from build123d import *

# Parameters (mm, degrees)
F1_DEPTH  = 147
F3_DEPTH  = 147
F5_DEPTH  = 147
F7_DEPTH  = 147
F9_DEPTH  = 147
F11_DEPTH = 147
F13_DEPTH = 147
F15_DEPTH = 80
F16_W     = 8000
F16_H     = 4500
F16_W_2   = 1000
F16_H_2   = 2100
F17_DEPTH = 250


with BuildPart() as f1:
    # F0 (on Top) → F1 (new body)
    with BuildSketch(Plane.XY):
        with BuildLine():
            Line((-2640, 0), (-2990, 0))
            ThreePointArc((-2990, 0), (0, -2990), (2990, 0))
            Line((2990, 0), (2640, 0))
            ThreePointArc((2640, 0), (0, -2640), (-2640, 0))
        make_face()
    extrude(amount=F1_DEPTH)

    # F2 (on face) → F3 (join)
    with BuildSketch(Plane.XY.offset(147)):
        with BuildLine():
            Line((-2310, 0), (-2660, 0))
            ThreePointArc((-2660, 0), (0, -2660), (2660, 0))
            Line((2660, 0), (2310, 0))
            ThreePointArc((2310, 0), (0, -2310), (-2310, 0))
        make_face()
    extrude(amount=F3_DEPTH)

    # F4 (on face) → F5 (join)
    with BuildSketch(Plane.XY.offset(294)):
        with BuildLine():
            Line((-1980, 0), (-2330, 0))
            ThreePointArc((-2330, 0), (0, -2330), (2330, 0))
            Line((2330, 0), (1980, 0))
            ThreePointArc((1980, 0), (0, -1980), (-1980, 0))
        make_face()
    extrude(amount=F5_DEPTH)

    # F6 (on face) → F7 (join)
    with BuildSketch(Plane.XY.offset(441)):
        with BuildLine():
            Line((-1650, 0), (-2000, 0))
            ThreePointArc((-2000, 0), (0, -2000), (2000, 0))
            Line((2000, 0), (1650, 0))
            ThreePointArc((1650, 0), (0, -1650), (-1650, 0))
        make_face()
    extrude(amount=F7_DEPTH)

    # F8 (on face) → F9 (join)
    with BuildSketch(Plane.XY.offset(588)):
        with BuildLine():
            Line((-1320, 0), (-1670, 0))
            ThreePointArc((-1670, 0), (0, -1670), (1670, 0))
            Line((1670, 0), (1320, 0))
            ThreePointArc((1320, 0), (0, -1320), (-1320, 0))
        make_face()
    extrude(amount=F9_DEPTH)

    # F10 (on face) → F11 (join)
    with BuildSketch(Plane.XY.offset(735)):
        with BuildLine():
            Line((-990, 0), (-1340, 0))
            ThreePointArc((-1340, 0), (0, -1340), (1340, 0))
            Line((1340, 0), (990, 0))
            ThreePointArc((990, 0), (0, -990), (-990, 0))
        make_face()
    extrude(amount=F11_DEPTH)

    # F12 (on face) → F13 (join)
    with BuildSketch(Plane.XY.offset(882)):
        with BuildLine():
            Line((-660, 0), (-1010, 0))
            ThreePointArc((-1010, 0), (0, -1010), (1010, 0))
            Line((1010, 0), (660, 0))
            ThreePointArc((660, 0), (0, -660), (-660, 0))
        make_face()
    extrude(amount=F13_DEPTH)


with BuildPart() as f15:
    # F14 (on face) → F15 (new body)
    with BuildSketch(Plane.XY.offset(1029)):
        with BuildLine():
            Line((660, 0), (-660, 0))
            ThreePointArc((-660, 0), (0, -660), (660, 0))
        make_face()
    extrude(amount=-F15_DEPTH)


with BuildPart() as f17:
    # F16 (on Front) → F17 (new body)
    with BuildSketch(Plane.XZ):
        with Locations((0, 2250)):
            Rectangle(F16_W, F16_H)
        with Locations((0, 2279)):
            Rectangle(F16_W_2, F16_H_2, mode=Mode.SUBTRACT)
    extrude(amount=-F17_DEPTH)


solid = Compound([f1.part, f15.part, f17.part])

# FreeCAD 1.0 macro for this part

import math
import FreeCAD as App
import Part
import Sketcher
from FreeCAD import Vector

doc = App.newDocument("Part")
body = doc.addObject("PartDesign::Body", "Body")

sketch1 = body.newObject("Sketcher::SketchObject", "Sketch")
sketch1.AttachmentSupport = (doc.getObject("XY_Plane"), [""])
sketch1.MapMode = "FlatFace"
sketch1.addGeometry([
    Part.LineSegment(Vector(-2640, 0, 0), Vector(-2990, 0, 0)),
    Part.ArcOfCircle(Part.Circle(Vector(0, 0, 0), Vector(0, 0, 1), 2990), math.radians(180), math.radians(360)),
    Part.LineSegment(Vector(2990, 0, 0), Vector(2640, 0, 0)),
    Part.ArcOfCircle(Part.Circle(Vector(0, 0, 0), Vector(0, 0, 1), 2640), math.radians(180), math.radians(360)),
], False)
sketch1.addConstraint([
    Sketcher.Constraint("Coincident", 0, 2, 1, 1),
    Sketcher.Constraint("Coincident", 1, 2, 2, 1),
    Sketcher.Constraint("Coincident", 2, 2, 3, 2),
    Sketcher.Constraint("Coincident", 3, 1, 0, 1),
    Sketcher.Constraint("Horizontal", 0),
    Sketcher.Constraint("Horizontal", 2),
    Sketcher.Constraint("Coincident", 1, 3, -1, 1),
    Sketcher.Constraint("Coincident", 3, 3, -1, 1),
    Sketcher.Constraint("PointOnObject", 0, 2, -1),
    Sketcher.Constraint("PointOnObject", 2, 2, -1),
    Sketcher.Constraint("Radius", 1, 2990.0),
    Sketcher.Constraint("Radius", 3, 2640.0),
])
pad1 = body.newObject("PartDesign::Pad", "Pad")
pad1.Profile = sketch1
pad1.Length = 147

sketch2 = body.newObject("Sketcher::SketchObject", "Sketch001")
sketch2.AttachmentSupport = (doc.getObject("XY_Plane"), [""])
sketch2.MapMode = "FlatFace"
sketch2.AttachmentOffset = App.Placement(Vector(0, 0, 147), App.Rotation())
sketch2.addGeometry([
    Part.LineSegment(Vector(-2310, 0, 0), Vector(-2660, 0, 0)),
    Part.ArcOfCircle(Part.Circle(Vector(0, 0, 0), Vector(0, 0, 1), 2660), math.radians(180), math.radians(360)),
    Part.LineSegment(Vector(2660, 0, 0), Vector(2310, 0, 0)),
    Part.ArcOfCircle(Part.Circle(Vector(0, 0, 0), Vector(0, 0, 1), 2310), math.radians(180), math.radians(360)),
], False)
sketch2.addConstraint([
    Sketcher.Constraint("Coincident", 0, 2, 1, 1),
    Sketcher.Constraint("Coincident", 1, 2, 2, 1),
    Sketcher.Constraint("Coincident", 2, 2, 3, 2),
    Sketcher.Constraint("Coincident", 3, 1, 0, 1),
    Sketcher.Constraint("Horizontal", 0),
    Sketcher.Constraint("Horizontal", 2),
    Sketcher.Constraint("Coincident", 1, 3, -1, 1),
    Sketcher.Constraint("Coincident", 3, 3, -1, 1),
    Sketcher.Constraint("PointOnObject", 0, 2, -1),
    Sketcher.Constraint("PointOnObject", 2, 2, -1),
    Sketcher.Constraint("Radius", 1, 2660.0),
    Sketcher.Constraint("Radius", 3, 2310.0),
])
pad2 = body.newObject("PartDesign::Pad", "Pad001")
pad2.Profile = sketch2
pad2.Length = 147

sketch3 = body.newObject("Sketcher::SketchObject", "Sketch002")
sketch3.AttachmentSupport = (doc.getObject("XY_Plane"), [""])
sketch3.MapMode = "FlatFace"
sketch3.AttachmentOffset = App.Placement(Vector(0, 0, 294), App.Rotation())
sketch3.addGeometry([
    Part.LineSegment(Vector(-1980, 0, 0), Vector(-2330, 0, 0)),
    Part.ArcOfCircle(Part.Circle(Vector(0, 0, 0), Vector(0, 0, 1), 2330), math.radians(180), math.radians(360)),
    Part.LineSegment(Vector(2330, 0, 0), Vector(1980, 0, 0)),
    Part.ArcOfCircle(Part.Circle(Vector(0, 0, 0), Vector(0, 0, 1), 1980), math.radians(180), math.radians(360)),
], False)
sketch3.addConstraint([
    Sketcher.Constraint("Coincident", 0, 2, 1, 1),
    Sketcher.Constraint("Coincident", 1, 2, 2, 1),
    Sketcher.Constraint("Coincident", 2, 2, 3, 2),
    Sketcher.Constraint("Coincident", 3, 1, 0, 1),
    Sketcher.Constraint("Horizontal", 0),
    Sketcher.Constraint("Horizontal", 2),
    Sketcher.Constraint("Coincident", 1, 3, -1, 1),
    Sketcher.Constraint("Coincident", 3, 3, -1, 1),
    Sketcher.Constraint("PointOnObject", 0, 2, -1),
    Sketcher.Constraint("PointOnObject", 2, 2, -1),
    Sketcher.Constraint("Radius", 1, 2330.0),
    Sketcher.Constraint("Radius", 3, 1980.0),
])
pad3 = body.newObject("PartDesign::Pad", "Pad002")
pad3.Profile = sketch3
pad3.Length = 147

sketch4 = body.newObject("Sketcher::SketchObject", "Sketch003")
sketch4.AttachmentSupport = (doc.getObject("XY_Plane"), [""])
sketch4.MapMode = "FlatFace"
sketch4.AttachmentOffset = App.Placement(Vector(0, 0, 441), App.Rotation())
sketch4.addGeometry([
    Part.LineSegment(Vector(-1650, 0, 0), Vector(-2000, 0, 0)),
    Part.ArcOfCircle(Part.Circle(Vector(0, 0, 0), Vector(0, 0, 1), 2000), math.radians(180), math.radians(360)),
    Part.LineSegment(Vector(2000, 0, 0), Vector(1650, 0, 0)),
    Part.ArcOfCircle(Part.Circle(Vector(0, 0, 0), Vector(0, 0, 1), 1650), math.radians(180), math.radians(360)),
], False)
sketch4.addConstraint([
    Sketcher.Constraint("Coincident", 0, 2, 1, 1),
    Sketcher.Constraint("Coincident", 1, 2, 2, 1),
    Sketcher.Constraint("Coincident", 2, 2, 3, 2),
    Sketcher.Constraint("Coincident", 3, 1, 0, 1),
    Sketcher.Constraint("Horizontal", 0),
    Sketcher.Constraint("Horizontal", 2),
    Sketcher.Constraint("Coincident", 1, 3, -1, 1),
    Sketcher.Constraint("Coincident", 3, 3, -1, 1),
    Sketcher.Constraint("PointOnObject", 0, 2, -1),
    Sketcher.Constraint("PointOnObject", 2, 2, -1),
    Sketcher.Constraint("Radius", 1, 2000.0),
    Sketcher.Constraint("Radius", 3, 1650.0),
])
pad4 = body.newObject("PartDesign::Pad", "Pad003")
pad4.Profile = sketch4
pad4.Length = 147

sketch5 = body.newObject("Sketcher::SketchObject", "Sketch004")
sketch5.AttachmentSupport = (doc.getObject("XY_Plane"), [""])
sketch5.MapMode = "FlatFace"
sketch5.AttachmentOffset = App.Placement(Vector(0, 0, 588), App.Rotation())
sketch5.addGeometry([
    Part.LineSegment(Vector(-1320, 0, 0), Vector(-1670, 0, 0)),
    Part.ArcOfCircle(Part.Circle(Vector(0, 0, 0), Vector(0, 0, 1), 1670), math.radians(180), math.radians(360)),
    Part.LineSegment(Vector(1670, 0, 0), Vector(1320, 0, 0)),
    Part.ArcOfCircle(Part.Circle(Vector(0, 0, 0), Vector(0, 0, 1), 1320), math.radians(180), math.radians(360)),
], False)
sketch5.addConstraint([
    Sketcher.Constraint("Coincident", 0, 2, 1, 1),
    Sketcher.Constraint("Coincident", 1, 2, 2, 1),
    Sketcher.Constraint("Coincident", 2, 2, 3, 2),
    Sketcher.Constraint("Coincident", 3, 1, 0, 1),
    Sketcher.Constraint("Horizontal", 0),
    Sketcher.Constraint("Horizontal", 2),
    Sketcher.Constraint("Coincident", 1, 3, -1, 1),
    Sketcher.Constraint("Coincident", 3, 3, -1, 1),
    Sketcher.Constraint("PointOnObject", 0, 2, -1),
    Sketcher.Constraint("PointOnObject", 2, 2, -1),
    Sketcher.Constraint("Radius", 1, 1670.0),
    Sketcher.Constraint("Radius", 3, 1320.0),
])
pad5 = body.newObject("PartDesign::Pad", "Pad004")
pad5.Profile = sketch5
pad5.Length = 147

sketch6 = body.newObject("Sketcher::SketchObject", "Sketch005")
sketch6.AttachmentSupport = (doc.getObject("XY_Plane"), [""])
sketch6.MapMode = "FlatFace"
sketch6.AttachmentOffset = App.Placement(Vector(0, 0, 735), App.Rotation())
sketch6.addGeometry([
    Part.LineSegment(Vector(-990, 0, 0), Vector(-1340, 0, 0)),
    Part.ArcOfCircle(Part.Circle(Vector(0, 0, 0), Vector(0, 0, 1), 1340), math.radians(180), math.radians(360)),
    Part.LineSegment(Vector(1340, 0, 0), Vector(990, 0, 0)),
    Part.ArcOfCircle(Part.Circle(Vector(0, 0, 0), Vector(0, 0, 1), 990), math.radians(180), math.radians(360)),
], False)
sketch6.addConstraint([
    Sketcher.Constraint("Coincident", 0, 2, 1, 1),
    Sketcher.Constraint("Coincident", 1, 2, 2, 1),
    Sketcher.Constraint("Coincident", 2, 2, 3, 2),
    Sketcher.Constraint("Coincident", 3, 1, 0, 1),
    Sketcher.Constraint("Horizontal", 0),
    Sketcher.Constraint("Horizontal", 2),
    Sketcher.Constraint("Coincident", 1, 3, -1, 1),
    Sketcher.Constraint("Coincident", 3, 3, -1, 1),
    Sketcher.Constraint("PointOnObject", 0, 2, -1),
    Sketcher.Constraint("PointOnObject", 2, 2, -1),
    Sketcher.Constraint("Radius", 1, 1340.0),
    Sketcher.Constraint("Radius", 3, 990.0),
])
pad6 = body.newObject("PartDesign::Pad", "Pad005")
pad6.Profile = sketch6
pad6.Length = 147

sketch7 = body.newObject("Sketcher::SketchObject", "Sketch006")
sketch7.AttachmentSupport = (doc.getObject("XY_Plane"), [""])
sketch7.MapMode = "FlatFace"
sketch7.AttachmentOffset = App.Placement(Vector(0, 0, 882), App.Rotation())
sketch7.addGeometry([
    Part.LineSegment(Vector(-660, 0, 0), Vector(-1010, 0, 0)),
    Part.ArcOfCircle(Part.Circle(Vector(0, 0, 0), Vector(0, 0, 1), 1010), math.radians(180), math.radians(360)),
    Part.LineSegment(Vector(1010, 0, 0), Vector(660, 0, 0)),
    Part.ArcOfCircle(Part.Circle(Vector(0, 0, 0), Vector(0, 0, 1), 660), math.radians(180), math.radians(360)),
], False)
sketch7.addConstraint([
    Sketcher.Constraint("Coincident", 0, 2, 1, 1),
    Sketcher.Constraint("Coincident", 1, 2, 2, 1),
    Sketcher.Constraint("Coincident", 2, 2, 3, 2),
    Sketcher.Constraint("Coincident", 3, 1, 0, 1),
    Sketcher.Constraint("Horizontal", 0),
    Sketcher.Constraint("Horizontal", 2),
    Sketcher.Constraint("Coincident", 1, 3, -1, 1),
    Sketcher.Constraint("Coincident", 3, 3, -1, 1),
    Sketcher.Constraint("PointOnObject", 0, 2, -1),
    Sketcher.Constraint("PointOnObject", 2, 2, -1),
    Sketcher.Constraint("Radius", 1, 1010.0),
    Sketcher.Constraint("Radius", 3, 660.0),
])
pad7 = body.newObject("PartDesign::Pad", "Pad006")
pad7.Profile = sketch7
pad7.Length = 147
body2 = doc.addObject("PartDesign::Body", "Body001")

sketch8 = body2.newObject("Sketcher::SketchObject", "Sketch007")
sketch8.AttachmentSupport = (doc.getObject("XY_Plane001"), [""])
sketch8.MapMode = "FlatFace"
sketch8.AttachmentOffset = App.Placement(Vector(0, 0, 1029), App.Rotation())
sketch8.addGeometry([
    Part.LineSegment(Vector(660, 0, 0), Vector(-660, 0, 0)),
    Part.ArcOfCircle(Part.Circle(Vector(0, 0, 0), Vector(0, 0, 1), 660), math.radians(180), math.radians(360)),
], False)
sketch8.addConstraint([
    Sketcher.Constraint("Coincident", 0, 1, 1, 2),
    Sketcher.Constraint("Coincident", 1, 1, 0, 2),
    Sketcher.Constraint("Horizontal", 0),
    Sketcher.Constraint("Coincident", 1, 3, -1, 1),
    Sketcher.Constraint("PointOnObject", 0, 1, -1),
    Sketcher.Constraint("Radius", 1, 660.0),
])
pad8 = body2.newObject("PartDesign::Pad", "Pad007")
pad8.Profile = sketch8
pad8.Length = 80
pad8.Reversed = True
body3 = doc.addObject("PartDesign::Body", "Body002")

sketch9 = body3.newObject("Sketcher::SketchObject", "Sketch008")
sketch9.AttachmentSupport = (doc.getObject("XZ_Plane002"), [""])
sketch9.MapMode = "FlatFace"
sketch9.addGeometry([
    Part.LineSegment(Vector(-4000, 4500, 0), Vector(-4000, 0, 0)),
    Part.LineSegment(Vector(-4000, 0, 0), Vector(4000, 0, 0)),
    Part.LineSegment(Vector(4000, 0, 0), Vector(4000, 4500, 0)),
    Part.LineSegment(Vector(4000, 4500, 0), Vector(-4000, 4500, 0)),
    Part.LineSegment(Vector(500, 1229, 0), Vector(-500, 1229, 0)),
    Part.LineSegment(Vector(-500, 1229, 0), Vector(-500, 3329, 0)),
    Part.LineSegment(Vector(-500, 3329, 0), Vector(500, 3329, 0)),
    Part.LineSegment(Vector(500, 3329, 0), Vector(500, 1229, 0)),
], False)
sketch9.addConstraint([
    Sketcher.Constraint("Coincident", 0, 2, 1, 1),
    Sketcher.Constraint("Coincident", 1, 2, 2, 1),
    Sketcher.Constraint("Coincident", 2, 2, 3, 1),
    Sketcher.Constraint("Coincident", 3, 2, 0, 1),
    Sketcher.Constraint("Coincident", 4, 2, 5, 1),
    Sketcher.Constraint("Coincident", 5, 2, 6, 1),
    Sketcher.Constraint("Coincident", 6, 2, 7, 1),
    Sketcher.Constraint("Coincident", 7, 2, 4, 1),
    Sketcher.Constraint("Vertical", 0),
    Sketcher.Constraint("Horizontal", 1),
    Sketcher.Constraint("Vertical", 2),
    Sketcher.Constraint("Horizontal", 3),
    Sketcher.Constraint("Horizontal", 4),
    Sketcher.Constraint("Vertical", 5),
    Sketcher.Constraint("Horizontal", 6),
    Sketcher.Constraint("Vertical", 7),
    Sketcher.Constraint("Symmetric", 0, 2, 1, 2, -1, 1),
    Sketcher.Constraint("DistanceX", 1, 1, 1, 2, 8000.0),
    Sketcher.Constraint("DistanceX", 4, 2, 4, 1, 1000.0),
    Sketcher.Constraint("DistanceY", 0, 2, 0, 1, 4500.0),
    Sketcher.Constraint("DistanceY", 5, 1, 5, 2, 2100.0),
    Sketcher.Constraint("DistanceX", 4, 2, -1, 1, 500.0),
    Sketcher.Constraint("DistanceY", -1, 1, 4, 2, 1229.0),
])
pad9 = body3.newObject("PartDesign::Pad", "Pad008")
pad9.Profile = sketch9
pad9.Length = 250
pad9.Reversed = True

doc.recompute()
